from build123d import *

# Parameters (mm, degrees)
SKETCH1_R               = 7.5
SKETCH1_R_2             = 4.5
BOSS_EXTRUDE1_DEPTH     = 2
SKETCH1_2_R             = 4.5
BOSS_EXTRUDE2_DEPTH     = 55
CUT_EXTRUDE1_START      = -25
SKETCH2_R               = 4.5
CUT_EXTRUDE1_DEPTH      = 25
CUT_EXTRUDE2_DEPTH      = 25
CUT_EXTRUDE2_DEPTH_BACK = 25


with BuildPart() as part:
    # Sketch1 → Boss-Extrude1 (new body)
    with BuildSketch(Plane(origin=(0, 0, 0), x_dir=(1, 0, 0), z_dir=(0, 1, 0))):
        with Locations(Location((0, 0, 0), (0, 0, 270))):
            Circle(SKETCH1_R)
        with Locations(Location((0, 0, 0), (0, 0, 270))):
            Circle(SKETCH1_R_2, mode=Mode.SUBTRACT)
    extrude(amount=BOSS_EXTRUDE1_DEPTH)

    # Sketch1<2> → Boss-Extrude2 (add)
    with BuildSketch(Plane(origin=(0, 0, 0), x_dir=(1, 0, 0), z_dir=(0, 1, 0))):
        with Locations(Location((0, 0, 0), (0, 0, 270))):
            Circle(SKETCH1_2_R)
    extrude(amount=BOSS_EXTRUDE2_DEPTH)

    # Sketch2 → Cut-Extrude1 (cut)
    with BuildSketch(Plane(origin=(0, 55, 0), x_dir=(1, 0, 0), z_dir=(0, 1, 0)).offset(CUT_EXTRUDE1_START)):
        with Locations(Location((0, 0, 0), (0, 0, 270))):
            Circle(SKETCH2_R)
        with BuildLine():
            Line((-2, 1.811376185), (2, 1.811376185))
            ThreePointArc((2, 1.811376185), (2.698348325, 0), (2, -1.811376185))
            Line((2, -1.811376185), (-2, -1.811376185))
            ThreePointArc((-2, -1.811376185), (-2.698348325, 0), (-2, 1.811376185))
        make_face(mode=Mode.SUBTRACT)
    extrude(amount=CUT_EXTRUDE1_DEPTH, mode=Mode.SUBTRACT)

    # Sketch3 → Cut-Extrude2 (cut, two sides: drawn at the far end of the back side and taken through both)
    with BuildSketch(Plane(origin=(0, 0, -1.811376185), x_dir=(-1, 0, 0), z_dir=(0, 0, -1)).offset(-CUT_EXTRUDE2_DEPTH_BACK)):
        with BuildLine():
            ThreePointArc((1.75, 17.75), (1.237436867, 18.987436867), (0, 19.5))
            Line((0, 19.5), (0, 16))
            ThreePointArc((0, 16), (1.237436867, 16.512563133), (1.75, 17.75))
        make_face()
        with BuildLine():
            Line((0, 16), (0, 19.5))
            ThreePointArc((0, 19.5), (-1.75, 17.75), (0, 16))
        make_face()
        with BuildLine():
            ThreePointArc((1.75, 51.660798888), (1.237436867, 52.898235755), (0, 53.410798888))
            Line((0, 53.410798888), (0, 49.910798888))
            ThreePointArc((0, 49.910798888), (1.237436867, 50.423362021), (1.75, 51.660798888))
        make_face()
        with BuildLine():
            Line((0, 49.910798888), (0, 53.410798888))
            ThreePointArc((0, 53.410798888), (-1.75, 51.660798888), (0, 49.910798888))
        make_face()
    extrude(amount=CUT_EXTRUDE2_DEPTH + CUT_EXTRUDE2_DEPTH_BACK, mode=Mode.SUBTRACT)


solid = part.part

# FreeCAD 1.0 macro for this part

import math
import FreeCAD as App
import Part
import Sketcher

doc = App.newDocument("Part")
params = doc.addObject("Spreadsheet::Sheet", "Params")
for row, (alias, value) in enumerate([
    ("sketch1_diameter", "15 mm"),
    ("sketch1_diameter2", "9 mm"),
    ("pad1_length", "2 mm"),
    ("sketch2_diameter", "9 mm"),
    ("pad2_length", "55 mm"),
    ("sketch3_diameter", "9 mm"),
    ("sketch3_width", "4 mm"),
    ("pocket1_length", "25 mm"),
    ("sketch4_radius", "1.75 mm"),
], start=1):
    params.set(f"A{row}", alias)
    params.set(f"B{row}", "=" + value)
    params.setAlias(f"B{row}", alias)

body = doc.addObject("PartDesign::Body", "Body")

sketch1 = body.newObject("Sketcher::SketchObject", "Sketch")
sketch1.AttachmentSupport = (doc.getObject("XZ_Plane"), [""])
sketch1.MapMode = "FlatFace"
sketch1.addGeometry(Part.Circle(App.Vector(0, 0, 0), App.Vector(0, 0, 1), 7.5), False)
sketch1.addGeometry(Part.Circle(App.Vector(0, 0, 0), App.Vector(0, 0, 1), 4.5), False)
sketch1.addConstraint(Sketcher.Constraint("Coincident", 0, 3, -1, 1))
sketch1.addConstraint(Sketcher.Constraint("Coincident", 1, 3, -1, 1))
sketch1.addConstraint(Sketcher.Constraint("Diameter", 0, 15.0))
sketch1.addConstraint(Sketcher.Constraint("Diameter", 1, 9.0))
sketch1.setExpression("Constraints[2]", "Params.sketch1_diameter")
sketch1.setExpression("Constraints[3]", "Params.sketch1_diameter2")
pad1 = body.newObject("PartDesign::Pad", "Pad")
pad1.Profile = sketch1
pad1.setExpression("Length", "Params.pad1_length")
pad1.Reversed = True

sketch2 = body.newObject("Sketcher::SketchObject", "Sketch001")
sketch2.AttachmentSupport = (doc.getObject("XZ_Plane"), [""])
sketch2.MapMode = "FlatFace"
sketch2.addGeometry(Part.Circle(App.Vector(0, 0, 0), App.Vector(0, 0, 1), 4.5), False)
sketch2.addConstraint(Sketcher.Constraint("Coincident", 0, 3, -1, 1))
sketch2.addConstraint(Sketcher.Constraint("Diameter", 0, 9.0))
sketch2.setExpression("Constraints[1]", "Params.sketch2_diameter")
pad2 = body.newObject("PartDesign::Pad", "Pad001")
pad2.Profile = sketch2
pad2.setExpression("Length", "Params.pad2_length")
pad2.Reversed = True

sketch3 = body.newObject("Sketcher::SketchObject", "Sketch002")
sketch3.AttachmentSupport = (doc.getObject("XZ_Plane"), [""])
sketch3.MapMode = "FlatFace"
sketch3.AttachmentOffset = App.Placement(App.Vector(0, 0, -30), App.Rotation())
sketch3.addGeometry(Part.Circle(App.Vector(0, 0, 0), App.Vector(0, 0, 1), 4.5), False)
sketch3.addGeometry(Part.ArcOfCircle(Part.Circle(App.Vector(0, 0, 0), App.Vector(0, 0, 1), 2.7), math.radians(138), math.radians(222)), False)
sketch3.addGeometry(Part.LineSegment(App.Vector(-2, -1.8, 0), App.Vector(2, -1.8, 0)), False)
sketch3.addGeometry(Part.ArcOfCircle(Part.Circle(App.Vector(0, 0, 0), App.Vector(0, 0, 1), 2.7), math.radians(-42), math.radians(42)), False)
sketch3.addGeometry(Part.LineSegment(App.Vector(2, 1.8, 0), App.Vector(-2, 1.8, 0)), False)
sketch3.addConstraint(Sketcher.Constraint("Coincident", 1, 2, 2, 1))
sketch3.addConstraint(Sketcher.Constraint("Coincident", 2, 2, 3, 1))
sketch3.addConstraint(Sketcher.Constraint("Coincident", 3, 2, 4, 1))
sketch3.addConstraint(Sketcher.Constraint("Coincident", 4, 2, 1, 1))
sketch3.addConstraint(Sketcher.Constraint("Horizontal", 2))
sketch3.addConstraint(Sketcher.Constraint("Horizontal", 4))
sketch3.addConstraint(Sketcher.Constraint("Coincident", 0, 3, -1, 1))
sketch3.addConstraint(Sketcher.Constraint("Coincident", 1, 3, -1, 1))
sketch3.addConstraint(Sketcher.Constraint("Coincident", 3, 3, -1, 1))
sketch3.addConstraint(Sketcher.Constraint("Equal", 1, 3))
sketch3.addConstraint(Sketcher.Constraint("Vertical", 2, 2, 3, 2))
sketch3.addConstraint(Sketcher.Constraint("Diameter", 0, 9.0))
sketch3.addConstraint(Sketcher.Constraint("DistanceX", 2, 1, 2, 2, 4.0))
sketch3.addConstraint(Sketcher.Constraint("Radius", 1, 2.698348))
sketch3.setExpression("Constraints[11]", "Params.sketch3_diameter")
sketch3.setExpression("Constraints[12]", "Params.sketch3_width")
pocket1 = body.newObject("PartDesign::Pocket", "Pocket")
pocket1.Profile = sketch3
pocket1.setExpression("Length", "Params.pocket1_length")

sketch4 = body.newObject("Sketcher::SketchObject", "Sketch003")
sketch4.AttachmentSupport = (doc.getObject("XY_Plane"), [""])
sketch4.MapMode = "FlatFace"
sketch4.AttachmentOffset = App.Placement(App.Vector(0, 0, -1.811376), App.Rotation())
sketch4.addGeometry(Part.ArcOfCircle(Part.Circle(App.Vector(0, 17.8, 0), App.Vector(0, 0, 1), 1.8), math.radians(90), math.radians(180)), False)
sketch4.addGeometry(Part.ArcOfCircle(Part.Circle(App.Vector(0, 17.8, 0), App.Vector(0, 0, 1), 1.8), math.radians(-90), math.radians(90)), False)
sketch4.addGeometry(Part.ArcOfCircle(Part.Circle(App.Vector(0, 17.8, 0), App.Vector(0, 0, 1), 1.8), math.radians(180), math.radians(270)), False)
sketch4.addGeometry(Part.ArcOfCircle(Part.Circle(App.Vector(0, 51.7, 0), App.Vector(0, 0, 1), 1.8), math.radians(90), math.radians(180)), False)
sketch4.addGeometry(Part.ArcOfCircle(Part.Circle(App.Vector(0, 51.7, 0), App.Vector(0, 0, 1), 1.8), math.radians(-90), math.radians(90)), False)
sketch4.addGeometry(Part.ArcOfCircle(Part.Circle(App.Vector(0, 51.7, 0), App.Vector(0, 0, 1), 1.8), math.radians(180), math.radians(270)), False)
sketch4.addConstraint(Sketcher.Constraint("Tangent", 0, 1, 1, 2))
sketch4.addConstraint(Sketcher.Constraint("Tangent", 1, 1, 2, 2))
sketch4.addConstraint(Sketcher.Constraint("Tangent", 2, 1, 0, 2))
sketch4.addConstraint(Sketcher.Constraint("Tangent", 3, 1, 4, 2))
sketch4.addConstraint(Sketcher.Constraint("Tangent", 4, 1, 5, 2))
sketch4.addConstraint(Sketcher.Constraint("Tangent", 5, 1, 3, 2))
sketch4.addConstraint(Sketcher.Constraint("Equal", 2, 3))
sketch4.addConstraint(Sketcher.Constraint("PointOnObject", 0, 3, -2))
sketch4.addConstraint(Sketcher.Constraint("PointOnObject", 3, 3, -2))
sketch4.addConstraint(Sketcher.Constraint("PointOnObject", 0, 1, -2))
sketch4.addConstraint(Sketcher.Constraint("PointOnObject", 1, 1, -2))
sketch4.addConstraint(Sketcher.Constraint("PointOnObject", 3, 1, -2))
sketch4.addConstraint(Sketcher.Constraint("PointOnObject", 4, 1, -2))
sketch4.addConstraint(Sketcher.Constraint("Horizontal", 1, 3, 2, 1))
sketch4.addConstraint(Sketcher.Constraint("Horizontal", 4, 3, 5, 1))
sketch4.addConstraint(Sketcher.Constraint("Radius", 0, 1.75))
sketch4.addConstraint(Sketcher.Constraint("DistanceY", -1, 1, 1, 1, 16.0))
sketch4.addConstraint(Sketcher.Constraint("DistanceY", -1, 1, 3, 3, 51.660799))
sketch4.setExpression("Constraints[15]", "Params.sketch4_radius")
pocket2 = body.newObject("PartDesign::Pocket", "Pocket001")
pocket2.Profile = sketch4
pocket2.Type = "ThroughAll"
pocket2.Midplane = True

doc.recompute()
